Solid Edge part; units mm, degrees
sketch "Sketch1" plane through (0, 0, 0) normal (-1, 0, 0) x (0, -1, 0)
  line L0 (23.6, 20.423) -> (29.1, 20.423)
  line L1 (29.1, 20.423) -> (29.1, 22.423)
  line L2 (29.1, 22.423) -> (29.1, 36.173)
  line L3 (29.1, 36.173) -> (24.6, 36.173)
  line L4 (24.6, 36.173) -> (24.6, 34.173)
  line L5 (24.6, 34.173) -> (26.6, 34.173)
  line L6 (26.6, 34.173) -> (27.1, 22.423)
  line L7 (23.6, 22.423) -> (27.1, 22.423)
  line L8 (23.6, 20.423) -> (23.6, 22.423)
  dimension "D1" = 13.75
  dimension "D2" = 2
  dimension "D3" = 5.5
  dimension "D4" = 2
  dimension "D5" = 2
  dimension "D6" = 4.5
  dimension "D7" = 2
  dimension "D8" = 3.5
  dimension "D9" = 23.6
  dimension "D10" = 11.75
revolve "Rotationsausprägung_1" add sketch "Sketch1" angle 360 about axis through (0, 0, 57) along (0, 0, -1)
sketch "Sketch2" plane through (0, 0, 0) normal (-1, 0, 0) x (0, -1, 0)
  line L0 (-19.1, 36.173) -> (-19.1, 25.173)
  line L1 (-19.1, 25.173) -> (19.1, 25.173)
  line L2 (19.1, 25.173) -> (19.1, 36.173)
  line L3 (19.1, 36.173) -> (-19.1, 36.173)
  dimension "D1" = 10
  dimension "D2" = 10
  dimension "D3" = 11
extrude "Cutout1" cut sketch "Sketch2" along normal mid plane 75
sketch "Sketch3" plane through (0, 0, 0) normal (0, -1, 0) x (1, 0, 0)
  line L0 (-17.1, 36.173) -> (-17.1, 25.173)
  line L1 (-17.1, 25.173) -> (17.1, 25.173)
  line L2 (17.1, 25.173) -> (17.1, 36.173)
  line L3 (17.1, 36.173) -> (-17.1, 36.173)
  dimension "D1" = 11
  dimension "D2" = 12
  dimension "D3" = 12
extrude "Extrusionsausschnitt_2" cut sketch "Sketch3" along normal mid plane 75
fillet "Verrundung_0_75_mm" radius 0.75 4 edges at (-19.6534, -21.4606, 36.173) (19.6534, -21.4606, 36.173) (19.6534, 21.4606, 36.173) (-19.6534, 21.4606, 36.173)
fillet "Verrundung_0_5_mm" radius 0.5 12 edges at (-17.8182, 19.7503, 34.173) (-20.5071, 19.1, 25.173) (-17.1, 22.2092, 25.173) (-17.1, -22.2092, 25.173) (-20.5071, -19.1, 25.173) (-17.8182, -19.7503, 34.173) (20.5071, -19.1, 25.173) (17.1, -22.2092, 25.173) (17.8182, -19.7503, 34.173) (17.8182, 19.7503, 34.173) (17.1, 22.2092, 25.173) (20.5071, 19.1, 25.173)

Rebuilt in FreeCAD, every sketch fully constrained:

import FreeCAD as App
import Part
import Sketcher
from FreeCAD import Vector
Q = App.Units.Quantity


def edges_at(feature, points):
    """Names of the edges that pass closest to the given points."""
    edges = feature.Shape.Edges
    near = lambda p: min(range(len(edges)), key=lambda i: edges[i].distToShape(Part.Vertex(*p))[0])
    return sorted({f"Edge{near(p) + 1}" for p in points})


def add_polygon(sketch, points):
    """Adds a closed chain of lines whose ends are joined by coincident constraints."""
    first, n = sketch.GeometryCount, len(points)
    for a, b in zip(points, points[1:] + points[:1]):
        sketch.addGeometry(Part.LineSegment(App.Vector(*a, 0), App.Vector(*b, 0)), False)
    for i in range(n):
        sketch.addConstraint(Sketcher.Constraint("Coincident", first + i, 2, first + (i + 1) % n, 1))

doc = App.newDocument("Part")
params = doc.addObject("Spreadsheet::Sheet", "Params")
for row, (alias, value) in enumerate([
    ("sketch1_width", "2 mm"),
    ("sketch1_width2", "3.5 mm"),
    ("sketch1_height", "15.75 mm"),
    ("revolution_angle", "360 deg"),
    ("sketch2_height", "11 mm"),
    ("pocket1_length", "75 mm"),
    ("sketch3_height", "11 mm"),
    ("pocket2_length", "75 mm"),
    ("fillet_radius", "0.75 mm"),
    ("fillet2_radius", "0.5 mm"),
], start=1):
    params.set(f"A{row}", alias)
    params.set(f"B{row}", "=" + value)
    params.setAlias(f"B{row}", alias)

body = doc.addObject("PartDesign::Body", "Body")

sketch1 = body.newObject("Sketcher::SketchObject", "Sketch")
sketch1.AttachmentSupport = (doc.getObject("YZ_Plane"), [""])
sketch1.MapMode = "FlatFace"
add_polygon(sketch1, [(-23.6, 22.423), (-23.6, 20.423), (-29.1, 20.423), (-29.1, 36.173), (-24.6, 36.173), (-24.6, 34.173), (-26.6, 34.173), (-27.1, 22.423)])
sketch1.addConstraint(Sketcher.Constraint("Vertical", 0))
sketch1.addConstraint(Sketcher.Constraint("Horizontal", 1))
sketch1.addConstraint(Sketcher.Constraint("Vertical", 2))
sketch1.addConstraint(Sketcher.Constraint("Horizontal", 3))
sketch1.addConstraint(Sketcher.Constraint("Vertical", 4))
sketch1.addConstraint(Sketcher.Constraint("Horizontal", 5))
sketch1.addConstraint(Sketcher.Constraint("Horizontal", 7))
sketch1.addConstraint(Sketcher.Constraint("Equal", 5, 0))
sketch1.addConstraint(Sketcher.Constraint("Equal", 0, 4))
sketch1.addConstraint(Sketcher.Constraint("DistanceX", 0, 2, -1, 1, Q("23.6 mm")))
sketch1.addConstraint(Sketcher.Constraint("DistanceX", 1, 2, -1, 1, Q("29.1 mm")))
sketch1.addConstraint(Sketcher.Constraint("DistanceX", 3, 2, -1, 1, Q("24.6 mm")))
sketch1.addConstraint(Sketcher.Constraint("DistanceX", 5, 2, 5, 1, Q("2 mm")))
sketch1.addConstraint(Sketcher.Constraint("DistanceX", 7, 1, 7, 2, Q("3.5 mm")))
sketch1.addConstraint(Sketcher.Constraint("DistanceY", 2, 1, 2, 2, Q("15.75 mm")))
sketch1.addConstraint(Sketcher.Constraint("DistanceY", -1, 1, 0, 2, Q("20.423 mm")))
sketch1.setExpression("Constraints[20]", "Params.sketch1_width")
sketch1.setExpression("Constraints[21]", "Params.sketch1_width2")
sketch1.setExpression("Constraints[22]", "Params.sketch1_height")
revolution = body.newObject("PartDesign::Revolution", "Revolution")
revolution.Profile = sketch1
revolution.ReferenceAxis = (sketch1, ["V_Axis"])
revolution.setExpression("Angle", "Params.revolution_angle")

sketch2 = body.newObject("Sketcher::SketchObject", "Sketch001")
sketch2.AttachmentSupport = (doc.getObject("YZ_Plane"), [""])
sketch2.MapMode = "FlatFace"
add_polygon(sketch2, [(-19.1, 36.173), (19.1, 36.173), (19.1, 25.173), (-19.1, 25.173)])
sketch2.addConstraint(Sketcher.Constraint("Horizontal", 0))
sketch2.addConstraint(Sketcher.Constraint("Vertical", 1))
sketch2.addConstraint(Sketcher.Constraint("Horizontal", 2))
sketch2.addConstraint(Sketcher.Constraint("Vertical", 3))
sketch2.addConstraint(Sketcher.Constraint("DistanceX", -1, 1, 0, 2, Q("19.1 mm")))
sketch2.addConstraint(Sketcher.Constraint("DistanceX", 2, 2, -1, 1, Q("19.1 mm")))
sketch2.addConstraint(Sketcher.Constraint("DistanceY", 1, 2, 1, 1, Q("11 mm")))
sketch2.addConstraint(Sketcher.Constraint("DistanceY", -1, 1, 0, 2, Q("36.173 mm")))
sketch2.setExpression("Constraints[10]", "Params.sketch2_height")
pocket1 = body.newObject("PartDesign::Pocket", "Pocket")
pocket1.Profile = sketch2
pocket1.setExpression("Length", "Params.pocket1_length")
pocket1.Midplane = True

sketch3 = body.newObject("Sketcher::SketchObject", "Sketch002")
sketch3.AttachmentSupport = (doc.getObject("XZ_Plane"), [""])
sketch3.MapMode = "FlatFace"
add_polygon(sketch3, [(17.1, 36.173), (-17.1, 36.173), (-17.1, 25.173), (17.1, 25.173)])
sketch3.addConstraint(Sketcher.Constraint("Horizontal", 0))
sketch3.addConstraint(Sketcher.Constraint("Vertical", 1))
sketch3.addConstraint(Sketcher.Constraint("Horizontal", 2))
sketch3.addConstraint(Sketcher.Constraint("Vertical", 3))
sketch3.addConstraint(Sketcher.Constraint("DistanceX", 0, 2, -1, 1, Q("17.1 mm")))
sketch3.addConstraint(Sketcher.Constraint("DistanceX", -1, 1, 2, 2, Q("17.1 mm")))
sketch3.addConstraint(Sketcher.Constraint("DistanceY", 1, 2, 1, 1, Q("11 mm")))
sketch3.addConstraint(Sketcher.Constraint("DistanceY", -1, 1, 0, 2, Q("36.173 mm")))
sketch3.setExpression("Constraints[10]", "Params.sketch3_height")
pocket2 = body.newObject("PartDesign::Pocket", "Pocket001")
pocket2.Profile = sketch3
pocket2.setExpression("Length", "Params.pocket2_length")
pocket2.Midplane = True
doc.recompute()

fillet = body.newObject("PartDesign::Fillet", "Fillet")
fillet.Base = (pocket2, edges_at(pocket2, [
    (-19.653, -21.461, 36.173),
    (19.653, -21.461, 36.173),
    (19.653, 21.461, 36.173),
    (-19.653, 21.461, 36.173),
]))
fillet.setExpression("Radius", "Params.fillet_radius")
doc.recompute()

fillet2 = body.newObject("PartDesign::Fillet", "Fillet001")
fillet2.Base = (fillet, edges_at(fillet, [
    (-17.818, 19.75, 34.173),
    (-20.507, 19.1, 25.173),
    (-17.1, 22.209, 25.173),
    (-17.1, -22.209, 25.173),
    (-20.507, -19.1, 25.173),
    (-17.818, -19.75, 34.173),
    (20.507, -19.1, 25.173),
    (17.1, -22.209, 25.173),
    (17.818, -19.75, 34.173),
    (17.818, 19.75, 34.173),
    (17.1, 22.209, 25.173),
    (20.507, 19.1, 25.173),
]))
fillet2.setExpression("Radius", "Params.fillet2_radius")

doc.recompute()
